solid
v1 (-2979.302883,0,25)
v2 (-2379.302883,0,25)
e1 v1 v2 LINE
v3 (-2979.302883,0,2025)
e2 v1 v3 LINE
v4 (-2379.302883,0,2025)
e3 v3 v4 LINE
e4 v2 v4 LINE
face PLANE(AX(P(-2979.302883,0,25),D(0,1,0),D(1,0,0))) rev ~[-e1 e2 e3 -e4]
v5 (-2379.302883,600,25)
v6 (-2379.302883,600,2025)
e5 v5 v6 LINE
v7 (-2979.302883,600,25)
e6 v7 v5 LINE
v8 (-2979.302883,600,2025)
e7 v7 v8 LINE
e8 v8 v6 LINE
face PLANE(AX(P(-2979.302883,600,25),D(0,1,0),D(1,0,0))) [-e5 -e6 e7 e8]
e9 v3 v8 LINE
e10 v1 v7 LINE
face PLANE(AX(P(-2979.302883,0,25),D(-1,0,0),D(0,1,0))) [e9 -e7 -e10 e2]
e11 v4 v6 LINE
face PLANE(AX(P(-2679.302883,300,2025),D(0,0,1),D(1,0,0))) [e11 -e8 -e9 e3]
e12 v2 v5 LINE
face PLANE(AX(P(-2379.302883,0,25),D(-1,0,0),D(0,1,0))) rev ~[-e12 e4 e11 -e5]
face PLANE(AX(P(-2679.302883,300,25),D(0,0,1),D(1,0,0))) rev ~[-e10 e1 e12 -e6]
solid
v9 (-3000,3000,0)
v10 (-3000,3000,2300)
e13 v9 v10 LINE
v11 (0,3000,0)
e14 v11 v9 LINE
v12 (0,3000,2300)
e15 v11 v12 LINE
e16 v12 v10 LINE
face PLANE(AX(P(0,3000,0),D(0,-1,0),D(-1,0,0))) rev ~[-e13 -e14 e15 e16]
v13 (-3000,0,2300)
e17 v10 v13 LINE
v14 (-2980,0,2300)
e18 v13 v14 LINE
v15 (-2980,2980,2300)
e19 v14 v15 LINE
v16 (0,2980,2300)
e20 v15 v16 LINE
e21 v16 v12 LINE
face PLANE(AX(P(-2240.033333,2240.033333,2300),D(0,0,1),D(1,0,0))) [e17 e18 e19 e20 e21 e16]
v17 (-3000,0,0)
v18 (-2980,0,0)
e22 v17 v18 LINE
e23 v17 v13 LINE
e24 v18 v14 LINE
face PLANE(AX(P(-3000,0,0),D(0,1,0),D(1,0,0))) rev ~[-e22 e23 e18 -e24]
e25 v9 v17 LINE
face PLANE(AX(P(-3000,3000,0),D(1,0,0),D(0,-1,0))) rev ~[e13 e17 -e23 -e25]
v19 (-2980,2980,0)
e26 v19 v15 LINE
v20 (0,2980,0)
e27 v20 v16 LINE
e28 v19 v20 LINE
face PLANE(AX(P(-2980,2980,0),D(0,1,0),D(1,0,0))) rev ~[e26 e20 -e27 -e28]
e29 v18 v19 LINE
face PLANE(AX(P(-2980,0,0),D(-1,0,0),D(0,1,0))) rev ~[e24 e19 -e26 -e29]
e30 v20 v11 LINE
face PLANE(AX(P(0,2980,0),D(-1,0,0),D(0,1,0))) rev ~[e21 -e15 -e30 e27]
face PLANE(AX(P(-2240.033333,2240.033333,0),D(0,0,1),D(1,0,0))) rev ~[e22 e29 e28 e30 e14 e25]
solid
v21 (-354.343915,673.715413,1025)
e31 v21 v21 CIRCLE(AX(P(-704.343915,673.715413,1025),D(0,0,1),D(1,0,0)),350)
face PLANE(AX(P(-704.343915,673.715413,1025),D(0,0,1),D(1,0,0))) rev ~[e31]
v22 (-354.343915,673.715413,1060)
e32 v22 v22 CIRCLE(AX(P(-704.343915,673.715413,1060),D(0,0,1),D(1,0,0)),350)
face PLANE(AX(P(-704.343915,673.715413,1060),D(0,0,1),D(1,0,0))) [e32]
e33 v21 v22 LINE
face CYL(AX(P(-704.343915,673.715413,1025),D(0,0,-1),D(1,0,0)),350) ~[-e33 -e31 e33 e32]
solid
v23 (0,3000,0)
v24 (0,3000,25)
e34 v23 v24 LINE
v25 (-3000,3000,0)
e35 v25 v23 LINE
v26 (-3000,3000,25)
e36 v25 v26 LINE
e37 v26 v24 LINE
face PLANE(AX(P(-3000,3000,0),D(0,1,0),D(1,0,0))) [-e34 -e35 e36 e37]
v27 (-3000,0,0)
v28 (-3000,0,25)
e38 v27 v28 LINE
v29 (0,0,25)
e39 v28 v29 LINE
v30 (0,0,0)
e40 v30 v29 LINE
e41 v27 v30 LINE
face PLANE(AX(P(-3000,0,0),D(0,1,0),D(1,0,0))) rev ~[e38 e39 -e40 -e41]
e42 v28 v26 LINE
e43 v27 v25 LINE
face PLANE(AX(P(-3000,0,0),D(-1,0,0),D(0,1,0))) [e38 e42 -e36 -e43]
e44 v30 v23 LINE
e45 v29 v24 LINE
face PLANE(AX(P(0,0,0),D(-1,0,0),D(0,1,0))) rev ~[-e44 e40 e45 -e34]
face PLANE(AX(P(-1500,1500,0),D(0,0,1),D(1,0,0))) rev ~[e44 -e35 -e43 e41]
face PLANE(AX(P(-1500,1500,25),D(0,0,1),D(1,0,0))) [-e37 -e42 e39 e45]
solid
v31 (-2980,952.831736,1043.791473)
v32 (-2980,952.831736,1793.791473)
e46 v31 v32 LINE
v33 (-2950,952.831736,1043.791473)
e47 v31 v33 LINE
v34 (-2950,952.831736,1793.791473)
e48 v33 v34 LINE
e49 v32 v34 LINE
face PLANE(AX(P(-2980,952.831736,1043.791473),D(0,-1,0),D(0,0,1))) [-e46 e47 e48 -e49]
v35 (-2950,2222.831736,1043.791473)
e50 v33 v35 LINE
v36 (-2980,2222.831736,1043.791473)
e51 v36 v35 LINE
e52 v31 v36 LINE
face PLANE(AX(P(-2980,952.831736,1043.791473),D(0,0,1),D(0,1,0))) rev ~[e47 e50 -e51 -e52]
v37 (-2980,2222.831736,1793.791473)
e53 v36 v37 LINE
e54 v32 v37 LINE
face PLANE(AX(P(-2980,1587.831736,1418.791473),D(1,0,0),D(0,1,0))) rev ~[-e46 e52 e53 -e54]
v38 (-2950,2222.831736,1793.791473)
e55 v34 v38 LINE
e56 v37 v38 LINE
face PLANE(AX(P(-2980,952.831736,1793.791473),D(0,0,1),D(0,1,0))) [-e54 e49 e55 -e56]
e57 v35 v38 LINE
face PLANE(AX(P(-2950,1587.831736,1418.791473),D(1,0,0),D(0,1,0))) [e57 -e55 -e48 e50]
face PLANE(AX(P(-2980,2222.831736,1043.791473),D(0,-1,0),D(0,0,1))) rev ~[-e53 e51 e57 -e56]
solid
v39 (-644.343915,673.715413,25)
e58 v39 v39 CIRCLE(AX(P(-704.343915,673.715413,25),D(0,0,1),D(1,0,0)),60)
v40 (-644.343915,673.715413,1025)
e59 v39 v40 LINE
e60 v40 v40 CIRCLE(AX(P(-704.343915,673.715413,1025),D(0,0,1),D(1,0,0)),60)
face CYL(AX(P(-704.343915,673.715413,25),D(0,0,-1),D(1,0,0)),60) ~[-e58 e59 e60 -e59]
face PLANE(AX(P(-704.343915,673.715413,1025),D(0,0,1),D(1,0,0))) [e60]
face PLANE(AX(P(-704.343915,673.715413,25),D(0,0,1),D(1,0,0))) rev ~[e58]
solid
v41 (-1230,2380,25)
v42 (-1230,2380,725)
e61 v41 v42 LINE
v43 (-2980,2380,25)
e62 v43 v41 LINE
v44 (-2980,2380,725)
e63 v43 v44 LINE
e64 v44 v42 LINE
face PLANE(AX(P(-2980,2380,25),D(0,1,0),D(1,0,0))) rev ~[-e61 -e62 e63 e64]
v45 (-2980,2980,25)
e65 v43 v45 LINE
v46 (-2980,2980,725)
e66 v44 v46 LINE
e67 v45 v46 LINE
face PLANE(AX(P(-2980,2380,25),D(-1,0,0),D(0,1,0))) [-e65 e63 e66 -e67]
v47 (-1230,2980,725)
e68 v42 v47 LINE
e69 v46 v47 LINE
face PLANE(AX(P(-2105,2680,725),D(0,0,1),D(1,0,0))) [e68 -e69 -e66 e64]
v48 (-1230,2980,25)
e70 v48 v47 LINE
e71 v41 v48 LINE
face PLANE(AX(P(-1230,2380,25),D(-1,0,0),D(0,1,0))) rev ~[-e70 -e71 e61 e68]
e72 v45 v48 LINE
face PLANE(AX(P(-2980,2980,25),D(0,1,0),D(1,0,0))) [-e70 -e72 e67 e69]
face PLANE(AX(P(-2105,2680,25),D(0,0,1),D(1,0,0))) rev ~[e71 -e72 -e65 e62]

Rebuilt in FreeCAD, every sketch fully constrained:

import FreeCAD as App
import Part
import Sketcher
from FreeCAD import Vector
Q = App.Units.Quantity

doc = App.newDocument("Part")
params = doc.addObject("Spreadsheet::Sheet", "Params")
for row, (alias, value) in enumerate([
    ("sketch1_width", "3000 mm"),
    ("pad1_length", "25 mm"),
    ("sketch2_width", "3000 mm"),
    ("sketch2_width2", "20 mm"),
    ("pad2_length", "2300 mm"),
    ("sketch3_width", "1750 mm"),
    ("sketch3_height", "600 mm"),
    ("pad3_length", "700 mm"),
    ("sketch4_width", "600 mm"),
    ("pad4_length", "2000 mm"),
    ("sketch5_diameter", "120 mm"),
    ("pad5_length", "1000 mm"),
    ("sketch6_diameter", "700 mm"),
    ("pad6_length", "35 mm"),
    ("sketch7_width", "1270 mm"),
    ("sketch7_height", "750 mm"),
    ("pad7_length", "30 mm"),
], start=1):
    params.set(f"A{row}", alias)
    params.set(f"B{row}", "=" + value)
    params.setAlias(f"B{row}", alias)

body = doc.addObject("PartDesign::Body", "Body")

sketch1 = body.newObject("Sketcher::SketchObject", "Sketch")
sketch1.AttachmentSupport = (doc.getObject("XY_Plane"), [""])
sketch1.MapMode = "FlatFace"
sketch1.addGeometry(Part.LineSegment(Vector(-3000, 3000, 0), Vector(-3000, 0, 0)), False)
sketch1.addGeometry(Part.LineSegment(Vector(-3000, 0, 0), Vector(0, 0, 0)), False)
sketch1.addGeometry(Part.LineSegment(Vector(0, 0, 0), Vector(0, 3000, 0)), False)
sketch1.addGeometry(Part.LineSegment(Vector(0, 3000, 0), Vector(-3000, 3000, 0)), False)
sketch1.addConstraint(Sketcher.Constraint("Coincident", 0, 2, 1, 1))
sketch1.addConstraint(Sketcher.Constraint("Coincident", 1, 2, 2, 1))
sketch1.addConstraint(Sketcher.Constraint("Coincident", 2, 2, 3, 1))
sketch1.addConstraint(Sketcher.Constraint("Coincident", 3, 2, 0, 1))
sketch1.addConstraint(Sketcher.Constraint("Vertical", 0))
sketch1.addConstraint(Sketcher.Constraint("Horizontal", 1))
sketch1.addConstraint(Sketcher.Constraint("Vertical", 2))
sketch1.addConstraint(Sketcher.Constraint("Horizontal", 3))
sketch1.addConstraint(Sketcher.Constraint("Coincident", 1, 2, -1, 1))
sketch1.addConstraint(Sketcher.Constraint("Equal", 3, 0))
sketch1.addConstraint(Sketcher.Constraint("DistanceX", 1, 1, 1, 2, Q("3000 mm")))
sketch1.setExpression("Constraints[10]", "Params.sketch1_width")
pad1 = body.newObject("PartDesign::Pad", "Pad")
pad1.Profile = sketch1
pad1.setExpression("Length", "Params.pad1_length")
body2 = doc.addObject("PartDesign::Body", "Body001")

sketch2 = body2.newObject("Sketcher::SketchObject", "Sketch001")
sketch2.AttachmentSupport = (doc.getObject("XY_Plane001"), [""])
sketch2.MapMode = "FlatFace"
sketch2.addGeometry(Part.LineSegment(Vector(0, 2980, 0), Vector(0, 3000, 0)), False)
sketch2.addGeometry(Part.LineSegment(Vector(0, 3000, 0), Vector(-3000, 3000, 0)), False)
sketch2.addGeometry(Part.LineSegment(Vector(-3000, 3000, 0), Vector(-3000, 0, 0)), False)
sketch2.addGeometry(Part.LineSegment(Vector(-3000, 0, 0), Vector(-2980, 0, 0)), False)
sketch2.addGeometry(Part.LineSegment(Vector(-2980, 0, 0), Vector(-2980, 2980, 0)), False)
sketch2.addGeometry(Part.LineSegment(Vector(-2980, 2980, 0), Vector(0, 2980, 0)), False)
sketch2.addConstraint(Sketcher.Constraint("Coincident", 0, 2, 1, 1))
sketch2.addConstraint(Sketcher.Constraint("Coincident", 1, 2, 2, 1))
sketch2.addConstraint(Sketcher.Constraint("Coincident", 2, 2, 3, 1))
sketch2.addConstraint(Sketcher.Constraint("Coincident", 3, 2, 4, 1))
sketch2.addConstraint(Sketcher.Constraint("Coincident", 4, 2, 5, 1))
sketch2.addConstraint(Sketcher.Constraint("Coincident", 5, 2, 0, 1))
sketch2.addConstraint(Sketcher.Constraint("Vertical", 0))
sketch2.addConstraint(Sketcher.Constraint("Horizontal", 1))
sketch2.addConstraint(Sketcher.Constraint("Vertical", 2))
sketch2.addConstraint(Sketcher.Constraint("Horizontal", 3))
sketch2.addConstraint(Sketcher.Constraint("Vertical", 4))
sketch2.addConstraint(Sketcher.Constraint("Horizontal", 5))
sketch2.addConstraint(Sketcher.Constraint("PointOnObject", 0, 2, -2))
sketch2.addConstraint(Sketcher.Constraint("PointOnObject", 2, 2, -1))
sketch2.addConstraint(Sketcher.Constraint("Equal", 3, 0))
sketch2.addConstraint(Sketcher.Constraint("Equal", 1, 2))
sketch2.addConstraint(Sketcher.Constraint("DistanceX", 1, 2, 1, 1, Q("3000 mm")))
sketch2.addConstraint(Sketcher.Constraint("DistanceX", 3, 1, 3, 2, Q("20 mm")))
sketch2.setExpression("Constraints[16]", "Params.sketch2_width")
sketch2.setExpression("Constraints[17]", "Params.sketch2_width2")
pad2 = body2.newObject("PartDesign::Pad", "Pad001")
pad2.Profile = sketch2
pad2.setExpression("Length", "Params.pad2_length")
body3 = doc.addObject("PartDesign::Body", "Body002")

sketch3 = body3.newObject("Sketcher::SketchObject", "Sketch002")
sketch3.AttachmentSupport = (doc.getObject("XY_Plane002"), [""])
sketch3.MapMode = "FlatFace"
sketch3.AttachmentOffset = App.Placement(Vector(0, 0, 25), App.Rotation())
sketch3.addGeometry(Part.LineSegment(Vector(-2980, 2980, 0), Vector(-2980, 2380, 0)), False)
sketch3.addGeometry(Part.LineSegment(Vector(-2980, 2380, 0), Vector(-1230, 2380, 0)), False)
sketch3.addGeometry(Part.LineSegment(Vector(-1230, 2380, 0), Vector(-1230, 2980, 0)), False)
sketch3.addGeometry(Part.LineSegment(Vector(-1230, 2980, 0), Vector(-2980, 2980, 0)), False)
sketch3.addConstraint(Sketcher.Constraint("Coincident", 0, 2, 1, 1))
sketch3.addConstraint(Sketcher.Constraint("Coincident", 1, 2, 2, 1))
sketch3.addConstraint(Sketcher.Constraint("Coincident", 2, 2, 3, 1))
sketch3.addConstraint(Sketcher.Constraint("Coincident", 3, 2, 0, 1))
sketch3.addConstraint(Sketcher.Constraint("Vertical", 0))
sketch3.addConstraint(Sketcher.Constraint("Horizontal", 1))
sketch3.addConstraint(Sketcher.Constraint("Vertical", 2))
sketch3.addConstraint(Sketcher.Constraint("Horizontal", 3))
sketch3.addConstraint(Sketcher.Constraint("DistanceX", 1, 1, 1, 2, Q("1750 mm")))
sketch3.addConstraint(Sketcher.Constraint("DistanceY", 0, 2, 0, 1, Q("600 mm")))
sketch3.addConstraint(Sketcher.Constraint("DistanceX", 0, 2, -1, 1, Q("2980 mm")))
sketch3.addConstraint(Sketcher.Constraint("DistanceY", -1, 1, 0, 2, Q("2380 mm")))
sketch3.setExpression("Constraints[8]", "Params.sketch3_width")
sketch3.setExpression("Constraints[9]", "Params.sketch3_height")
pad3 = body3.newObject("PartDesign::Pad", "Pad002")
pad3.Profile = sketch3
pad3.setExpression("Length", "Params.pad3_length")
body4 = doc.addObject("PartDesign::Body", "Body003")

sketch4 = body4.newObject("Sketcher::SketchObject", "Sketch003")
sketch4.AttachmentSupport = (doc.getObject("XY_Plane003"), [""])
sketch4.MapMode = "FlatFace"
sketch4.AttachmentOffset = App.Placement(Vector(0, 0, 25), App.Rotation())
sketch4.addGeometry(Part.LineSegment(Vector(-2979, 600, 0), Vector(-2979, 0, 0)), False)
sketch4.addGeometry(Part.LineSegment(Vector(-2979, 0, 0), Vector(-2379, 0, 0)), False)
sketch4.addGeometry(Part.LineSegment(Vector(-2379, 0, 0), Vector(-2379, 600, 0)), False)
sketch4.addGeometry(Part.LineSegment(Vector(-2379, 600, 0), Vector(-2979, 600, 0)), False)
sketch4.addConstraint(Sketcher.Constraint("Coincident", 0, 2, 1, 1))
sketch4.addConstraint(Sketcher.Constraint("Coincident", 1, 2, 2, 1))
sketch4.addConstraint(Sketcher.Constraint("Coincident", 2, 2, 3, 1))
sketch4.addConstraint(Sketcher.Constraint("Coincident", 3, 2, 0, 1))
sketch4.addConstraint(Sketcher.Constraint("Vertical", 0))
sketch4.addConstraint(Sketcher.Constraint("Horizontal", 1))
sketch4.addConstraint(Sketcher.Constraint("Vertical", 2))
sketch4.addConstraint(Sketcher.Constraint("Horizontal", 3))
sketch4.addConstraint(Sketcher.Constraint("PointOnObject", 0, 2, -1))
sketch4.addConstraint(Sketcher.Constraint("Equal", 3, 0))
sketch4.addConstraint(Sketcher.Constraint("DistanceX", 1, 1, 1, 2, Q("600 mm")))
sketch4.addConstraint(Sketcher.Constraint("DistanceX", 0, 2, -1, 1, Q("2979.302883 mm")))
sketch4.setExpression("Constraints[10]", "Params.sketch4_width")
pad4 = body4.newObject("PartDesign::Pad", "Pad003")
pad4.Profile = sketch4
pad4.setExpression("Length", "Params.pad4_length")
body5 = doc.addObject("PartDesign::Body", "Body004")

sketch5 = body5.newObject("Sketcher::SketchObject", "Sketch004")
sketch5.AttachmentSupport = (doc.getObject("XY_Plane004"), [""])
sketch5.MapMode = "FlatFace"
sketch5.AttachmentOffset = App.Placement(Vector(0, 0, 25), App.Rotation())
sketch5.addGeometry(Part.Circle(Vector(-704, 674, 0), Vector(0, 0, 1), 60), False)
sketch5.addConstraint(Sketcher.Constraint("Diameter", 0, Q("120 mm")))
sketch5.addConstraint(Sketcher.Constraint("DistanceX", 0, 3, -1, 1, Q("704.343915 mm")))
sketch5.addConstraint(Sketcher.Constraint("DistanceY", -1, 1, 0, 3, Q("673.715413 mm")))
sketch5.setExpression("Constraints[0]", "Params.sketch5_diameter")
pad5 = body5.newObject("PartDesign::Pad", "Pad004")
pad5.Profile = sketch5
pad5.setExpression("Length", "Params.pad5_length")
body6 = doc.addObject("PartDesign::Body", "Body005")

sketch6 = body6.newObject("Sketcher::SketchObject", "Sketch005")
sketch6.AttachmentSupport = (doc.getObject("XY_Plane005"), [""])
sketch6.MapMode = "FlatFace"
sketch6.AttachmentOffset = App.Placement(Vector(0, 0, 1025), App.Rotation())
sketch6.addGeometry(Part.Circle(Vector(-704, 674, 0), Vector(0, 0, 1), 350), False)
sketch6.addConstraint(Sketcher.Constraint("Diameter", 0, Q("700 mm")))
sketch6.addConstraint(Sketcher.Constraint("DistanceX", 0, 3, -1, 1, Q("704.343915 mm")))
sketch6.addConstraint(Sketcher.Constraint("DistanceY", -1, 1, 0, 3, Q("673.715413 mm")))
sketch6.setExpression("Constraints[0]", "Params.sketch6_diameter")
pad6 = body6.newObject("PartDesign::Pad", "Pad005")
pad6.Profile = sketch6
pad6.setExpression("Length", "Params.pad6_length")
body7 = doc.addObject("PartDesign::Body", "Body006")

sketch7 = body7.newObject("Sketcher::SketchObject", "Sketch006")
sketch7.AttachmentSupport = (doc.getObject("YZ_Plane006"), [""])
sketch7.MapMode = "FlatFace"
sketch7.AttachmentOffset = App.Placement(Vector(0, 0, -2980), App.Rotation())
sketch7.addGeometry(Part.LineSegment(Vector(953, 1794, 0), Vector(953, 1044, 0)), False)
sketch7.addGeometry(Part.LineSegment(Vector(953, 1044, 0), Vector(2223, 1044, 0)), False)
sketch7.addGeometry(Part.LineSegment(Vector(2223, 1044, 0), Vector(2223, 1794, 0)), False)
sketch7.addGeometry(Part.LineSegment(Vector(2223, 1794, 0), Vector(953, 1794, 0)), False)
sketch7.addConstraint(Sketcher.Constraint("Coincident", 0, 2, 1, 1))
sketch7.addConstraint(Sketcher.Constraint("Coincident", 1, 2, 2, 1))
sketch7.addConstraint(Sketcher.Constraint("Coincident", 2, 2, 3, 1))
sketch7.addConstraint(Sketcher.Constraint("Coincident", 3, 2, 0, 1))
sketch7.addConstraint(Sketcher.Constraint("Vertical", 0))
sketch7.addConstraint(Sketcher.Constraint("Horizontal", 1))
sketch7.addConstraint(Sketcher.Constraint("Vertical", 2))
sketch7.addConstraint(Sketcher.Constraint("Horizontal", 3))
sketch7.addConstraint(Sketcher.Constraint("DistanceX", 1, 1, 1, 2, Q("1270 mm")))
sketch7.addConstraint(Sketcher.Constraint("DistanceY", 0, 2, 0, 1, Q("750 mm")))
sketch7.addConstraint(Sketcher.Constraint("DistanceX", -1, 1, 0, 2, Q("952.831736 mm")))
sketch7.addConstraint(Sketcher.Constraint("DistanceY", -1, 1, 0, 2, Q("1043.791473 mm")))
sketch7.setExpression("Constraints[8]", "Params.sketch7_width")
sketch7.setExpression("Constraints[9]", "Params.sketch7_height")
pad7 = body7.newObject("PartDesign::Pad", "Pad006")
pad7.Profile = sketch7
pad7.setExpression("Length", "Params.pad7_length")

doc.recompute()
